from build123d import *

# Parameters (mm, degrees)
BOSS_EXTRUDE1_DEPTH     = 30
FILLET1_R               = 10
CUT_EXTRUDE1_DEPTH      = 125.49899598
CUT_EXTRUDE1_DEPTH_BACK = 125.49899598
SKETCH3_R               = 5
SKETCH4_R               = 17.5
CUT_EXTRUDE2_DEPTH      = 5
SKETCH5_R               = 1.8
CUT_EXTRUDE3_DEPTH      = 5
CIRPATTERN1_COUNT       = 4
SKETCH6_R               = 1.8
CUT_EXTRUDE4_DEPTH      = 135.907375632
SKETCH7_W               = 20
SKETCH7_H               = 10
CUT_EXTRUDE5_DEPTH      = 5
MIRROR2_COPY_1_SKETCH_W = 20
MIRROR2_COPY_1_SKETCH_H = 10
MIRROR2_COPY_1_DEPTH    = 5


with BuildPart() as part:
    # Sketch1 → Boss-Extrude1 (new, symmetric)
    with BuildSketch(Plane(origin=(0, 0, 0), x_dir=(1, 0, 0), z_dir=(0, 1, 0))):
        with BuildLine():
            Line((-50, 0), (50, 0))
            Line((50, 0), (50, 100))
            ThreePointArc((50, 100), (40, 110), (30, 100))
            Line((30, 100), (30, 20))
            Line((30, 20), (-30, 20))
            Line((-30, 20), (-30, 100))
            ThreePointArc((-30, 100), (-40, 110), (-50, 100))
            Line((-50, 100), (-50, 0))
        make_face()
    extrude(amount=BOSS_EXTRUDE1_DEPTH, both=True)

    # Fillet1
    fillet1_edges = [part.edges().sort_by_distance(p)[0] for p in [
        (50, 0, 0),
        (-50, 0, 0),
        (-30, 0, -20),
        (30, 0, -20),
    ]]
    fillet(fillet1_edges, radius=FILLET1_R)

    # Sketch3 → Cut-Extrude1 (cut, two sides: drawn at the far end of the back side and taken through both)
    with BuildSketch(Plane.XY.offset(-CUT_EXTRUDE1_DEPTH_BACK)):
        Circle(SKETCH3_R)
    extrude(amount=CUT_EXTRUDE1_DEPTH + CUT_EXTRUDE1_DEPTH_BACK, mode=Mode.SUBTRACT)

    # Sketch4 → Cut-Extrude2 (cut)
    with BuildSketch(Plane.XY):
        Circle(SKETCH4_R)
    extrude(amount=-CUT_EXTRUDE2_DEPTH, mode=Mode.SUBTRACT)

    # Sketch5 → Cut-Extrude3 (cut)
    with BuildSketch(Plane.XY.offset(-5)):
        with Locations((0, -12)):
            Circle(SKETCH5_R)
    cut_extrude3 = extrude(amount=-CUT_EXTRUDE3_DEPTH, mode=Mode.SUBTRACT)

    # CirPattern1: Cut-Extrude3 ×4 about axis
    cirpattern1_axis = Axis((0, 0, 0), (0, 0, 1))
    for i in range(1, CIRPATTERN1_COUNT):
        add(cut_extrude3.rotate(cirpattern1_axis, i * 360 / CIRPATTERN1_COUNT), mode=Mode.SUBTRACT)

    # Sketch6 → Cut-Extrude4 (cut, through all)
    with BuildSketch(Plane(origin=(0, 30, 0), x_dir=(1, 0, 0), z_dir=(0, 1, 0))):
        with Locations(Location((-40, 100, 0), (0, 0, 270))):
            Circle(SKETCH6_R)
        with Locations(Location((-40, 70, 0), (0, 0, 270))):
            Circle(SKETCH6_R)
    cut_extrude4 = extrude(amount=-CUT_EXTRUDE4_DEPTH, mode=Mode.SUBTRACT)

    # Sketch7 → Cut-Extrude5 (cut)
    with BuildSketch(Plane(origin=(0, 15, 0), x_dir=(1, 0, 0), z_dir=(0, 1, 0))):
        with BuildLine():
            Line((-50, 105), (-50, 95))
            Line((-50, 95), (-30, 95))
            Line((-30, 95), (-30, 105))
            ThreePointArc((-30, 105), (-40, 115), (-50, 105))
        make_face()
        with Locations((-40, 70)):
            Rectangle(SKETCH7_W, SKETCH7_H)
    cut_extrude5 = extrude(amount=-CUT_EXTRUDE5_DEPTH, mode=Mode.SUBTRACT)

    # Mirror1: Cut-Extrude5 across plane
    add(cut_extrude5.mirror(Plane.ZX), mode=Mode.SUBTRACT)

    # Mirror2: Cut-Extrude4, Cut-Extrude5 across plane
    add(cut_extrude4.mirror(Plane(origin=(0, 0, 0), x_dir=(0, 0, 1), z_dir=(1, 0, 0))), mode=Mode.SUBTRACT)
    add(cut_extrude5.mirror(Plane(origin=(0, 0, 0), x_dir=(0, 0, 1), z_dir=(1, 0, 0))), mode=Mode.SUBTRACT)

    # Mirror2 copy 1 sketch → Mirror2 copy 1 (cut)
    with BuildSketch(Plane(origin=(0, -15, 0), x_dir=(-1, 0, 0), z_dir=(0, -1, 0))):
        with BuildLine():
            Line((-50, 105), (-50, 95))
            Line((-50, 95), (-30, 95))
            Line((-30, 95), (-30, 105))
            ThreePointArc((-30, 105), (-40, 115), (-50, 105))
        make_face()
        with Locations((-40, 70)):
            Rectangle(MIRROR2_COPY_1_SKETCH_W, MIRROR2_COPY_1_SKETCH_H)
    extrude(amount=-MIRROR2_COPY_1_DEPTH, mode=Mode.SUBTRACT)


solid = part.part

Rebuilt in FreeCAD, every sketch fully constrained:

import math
import FreeCAD as App
import Part
import Sketcher


def edges_at(feature, points):
    """Names of the edges that pass closest to the given points."""
    edges = feature.Shape.Edges
    near = lambda p: min(range(len(edges)), key=lambda i: edges[i].distToShape(Part.Vertex(*p))[0])
    return sorted({f"Edge{near(p) + 1}" for p in points})

doc = App.newDocument("Part")
body = doc.addObject("PartDesign::Body", "Body")

# Sketch on XZ plane
sketch1 = body.newObject("Sketcher::SketchObject", "Sketch")
sketch1.AttachmentSupport = (doc.getObject("XZ_Plane"), [""])
sketch1.MapMode = "FlatFace"
sketch1.addGeometry(Part.LineSegment(App.Vector(-50, 0, 0), App.Vector(50, 0, 0)), False)
sketch1.addGeometry(Part.LineSegment(App.Vector(50, 0, 0), App.Vector(50, -100, 0)), False)
sketch1.addGeometry(Part.ArcOfCircle(Part.Circle(App.Vector(40, -100, 0), App.Vector(0, 0, 1), 10), math.radians(180), math.radians(360)), False)
sketch1.addGeometry(Part.LineSegment(App.Vector(30, -100, 0), App.Vector(30, -20, 0)), False)
sketch1.addGeometry(Part.LineSegment(App.Vector(30, -20, 0), App.Vector(-30, -20, 0)), False)
sketch1.addGeometry(Part.LineSegment(App.Vector(-30, -20, 0), App.Vector(-30, -100, 0)), False)
sketch1.addGeometry(Part.ArcOfCircle(Part.Circle(App.Vector(-40, -100, 0), App.Vector(0, 0, 1), 10), math.radians(180), math.radians(360)), False)
sketch1.addGeometry(Part.LineSegment(App.Vector(-50, -100, 0), App.Vector(-50, 0, 0)), False)
sketch1.addConstraint(Sketcher.Constraint("Coincident", 0, 2, 1, 1))
sketch1.addConstraint(Sketcher.Constraint("Tangent", 1, 2, 2, 2))
sketch1.addConstraint(Sketcher.Constraint("Tangent", 2, 1, 3, 1))
sketch1.addConstraint(Sketcher.Constraint("Coincident", 3, 2, 4, 1))
sketch1.addConstraint(Sketcher.Constraint("Coincident", 4, 2, 5, 1))
sketch1.addConstraint(Sketcher.Constraint("Tangent", 5, 2, 6, 2))
sketch1.addConstraint(Sketcher.Constraint("Tangent", 6, 1, 7, 1))
sketch1.addConstraint(Sketcher.Constraint("Coincident", 7, 2, 0, 1))
sketch1.addConstraint(Sketcher.Constraint("Horizontal", 0))
sketch1.addConstraint(Sketcher.Constraint("Vertical", 1))
sketch1.addConstraint(Sketcher.Constraint("Vertical", 3))
sketch1.addConstraint(Sketcher.Constraint("Horizontal", 4))
sketch1.addConstraint(Sketcher.Constraint("Vertical", 5))
sketch1.addConstraint(Sketcher.Constraint("Vertical", 7))
sketch1.addConstraint(Sketcher.Constraint("Equal", 2, 6))
sketch1.addConstraint(Sketcher.Constraint("Symmetric", 0, 2, 7, 2, -1, 1))
sketch1.addConstraint(Sketcher.Constraint("Horizontal", 2, 3, 6, 3))
sketch1.addConstraint(Sketcher.Constraint("Equal", 0, 1))
sketch1.addConstraint(Sketcher.Constraint("Radius", 2, 10.0))
sketch1.addConstraint(Sketcher.Constraint("DistanceX", 0, 1, 0, 2, 100.0))
sketch1.addConstraint(Sketcher.Constraint("DistanceY", 3, 1, 3, 2, 80.0))
pad1 = body.newObject("PartDesign::Pad", "Pad")
pad1.Profile = sketch1
pad1.Length = 60
pad1.Midplane = True
doc.recompute()

fillet = body.newObject("PartDesign::Fillet", "Fillet")
fillet.Base = (pad1, edges_at(pad1, [
    (50, 0, 0),
    (-50, 0, 0),
    (-30, 0, -20),
    (30, 0, -20),
]))
fillet.Radius = 10

# Sketch on XY plane
sketch2 = body.newObject("Sketcher::SketchObject", "Sketch001")
sketch2.AttachmentSupport = (doc.getObject("XY_Plane"), [""])
sketch2.MapMode = "FlatFace"
sketch2.addGeometry(Part.Circle(App.Vector(0, 0, 0), App.Vector(0, 0, 1), 5), False)
sketch2.addConstraint(Sketcher.Constraint("Coincident", 0, 3, -1, 1))
sketch2.addConstraint(Sketcher.Constraint("Diameter", 0, 10.0))
pocket1 = body.newObject("PartDesign::Pocket", "Pocket")
pocket1.Profile = sketch2
pocket1.Type = "ThroughAll"
pocket1.Midplane = True

# Sketch on XY plane
sketch3 = body.newObject("Sketcher::SketchObject", "Sketch002")
sketch3.AttachmentSupport = (doc.getObject("XY_Plane"), [""])
sketch3.MapMode = "FlatFace"
sketch3.addGeometry(Part.Circle(App.Vector(0, 0, 0), App.Vector(0, 0, 1), 18), False)
sketch3.addConstraint(Sketcher.Constraint("Coincident", 0, 3, -1, 1))
sketch3.addConstraint(Sketcher.Constraint("Diameter", 0, 35.0))
pocket2 = body.newObject("PartDesign::Pocket", "Pocket001")
pocket2.Profile = sketch3
pocket2.Length = 5

# Sketch on XY plane
sketch4 = body.newObject("Sketcher::SketchObject", "Sketch003")
sketch4.AttachmentSupport = (doc.getObject("XY_Plane"), [""])
sketch4.MapMode = "FlatFace"
sketch4.AttachmentOffset = App.Placement(App.Vector(0, 0, -5), App.Rotation())
sketch4.addGeometry(Part.Circle(App.Vector(0, -12, 0), App.Vector(0, 0, 1), 1.8), False)
sketch4.addConstraint(Sketcher.Constraint("PointOnObject", 0, 3, -2))
sketch4.addConstraint(Sketcher.Constraint("Diameter", 0, 3.6))
sketch4.addConstraint(Sketcher.Constraint("DistanceY", 0, 3, -1, 1, 12.0))
pocket3 = body.newObject("PartDesign::Pocket", "Pocket002")
pocket3.Profile = sketch4
pocket3.Length = 5
doc.recompute()

polarpattern = body.newObject("PartDesign::PolarPattern", "PolarPattern")
polarpattern.Originals = [pocket3]
polarpattern.Axis = (doc.getObject("Z_Axis"), [""])
polarpattern.Angle = 360
polarpattern.Occurrences = 4
body.Tip = polarpattern

# Sketch on XZ plane
sketch5 = body.newObject("Sketcher::SketchObject", "Sketch004")
sketch5.AttachmentSupport = (doc.getObject("XZ_Plane"), [""])
sketch5.MapMode = "FlatFace"
sketch5.AttachmentOffset = App.Placement(App.Vector(0, 0, -30), App.Rotation())
sketch5.addGeometry(Part.Circle(App.Vector(-40, -100, 0), App.Vector(0, 0, 1), 1.8), False)
sketch5.addGeometry(Part.Circle(App.Vector(-40, -70, 0), App.Vector(0, 0, 1), 1.8), False)
sketch5.addConstraint(Sketcher.Constraint("Equal", 0, 1))
sketch5.addConstraint(Sketcher.Constraint("Vertical", 0, 3, 1, 3))
sketch5.addConstraint(Sketcher.Constraint("Diameter", 0, 3.6))
sketch5.addConstraint(Sketcher.Constraint("DistanceX", 0, 3, -1, 1, 40.0))
sketch5.addConstraint(Sketcher.Constraint("DistanceY", 0, 3, -1, 1, 100.0))
sketch5.addConstraint(Sketcher.Constraint("DistanceY", 1, 3, -1, 1, 70.0))
pocket4 = body.newObject("PartDesign::Pocket", "Pocket003")
pocket4.Profile = sketch5
pocket4.Type = "ThroughAll"
pocket4.Reversed = True

# Sketch on XZ plane
sketch6 = body.newObject("Sketcher::SketchObject", "Sketch005")
sketch6.AttachmentSupport = (doc.getObject("XZ_Plane"), [""])
sketch6.MapMode = "FlatFace"
sketch6.AttachmentOffset = App.Placement(App.Vector(0, 0, -15), App.Rotation())
sketch6.addGeometry(Part.LineSegment(App.Vector(-50, -105, 0), App.Vector(-50, -95, 0)), False)
sketch6.addGeometry(Part.LineSegment(App.Vector(-50, -95, 0), App.Vector(-30, -95, 0)), False)
sketch6.addGeometry(Part.LineSegment(App.Vector(-30, -95, 0), App.Vector(-30, -105, 0)), False)
sketch6.addGeometry(Part.ArcOfCircle(Part.Circle(App.Vector(-40, -105, 0), App.Vector(0, 0, 1), 10), math.radians(180), math.radians(360)), False)
sketch6.addGeometry(Part.LineSegment(App.Vector(-50, -75, 0), App.Vector(-50, -65, 0)), False)
sketch6.addGeometry(Part.LineSegment(App.Vector(-50, -65, 0), App.Vector(-30, -65, 0)), False)
sketch6.addGeometry(Part.LineSegment(App.Vector(-30, -65, 0), App.Vector(-30, -75, 0)), False)
sketch6.addGeometry(Part.LineSegment(App.Vector(-30, -75, 0), App.Vector(-50, -75, 0)), False)
sketch6.addConstraint(Sketcher.Constraint("Coincident", 0, 2, 1, 1))
sketch6.addConstraint(Sketcher.Constraint("Coincident", 1, 2, 2, 1))
sketch6.addConstraint(Sketcher.Constraint("Tangent", 2, 2, 3, 2))
sketch6.addConstraint(Sketcher.Constraint("Tangent", 3, 1, 0, 1))
sketch6.addConstraint(Sketcher.Constraint("Coincident", 4, 2, 5, 1))
sketch6.addConstraint(Sketcher.Constraint("Coincident", 5, 2, 6, 1))
sketch6.addConstraint(Sketcher.Constraint("Coincident", 6, 2, 7, 1))
sketch6.addConstraint(Sketcher.Constraint("Coincident", 7, 2, 4, 1))
sketch6.addConstraint(Sketcher.Constraint("Vertical", 0))
sketch6.addConstraint(Sketcher.Constraint("Horizontal", 1))
sketch6.addConstraint(Sketcher.Constraint("Vertical", 2))
sketch6.addConstraint(Sketcher.Constraint("Vertical", 4))
sketch6.addConstraint(Sketcher.Constraint("Horizontal", 5))
sketch6.addConstraint(Sketcher.Constraint("Vertical", 6))
sketch6.addConstraint(Sketcher.Constraint("Horizontal", 7))
sketch6.addConstraint(Sketcher.Constraint("Vertical", 3, 1, 4, 2))
sketch6.addConstraint(Sketcher.Constraint("Vertical", 2, 2, 5, 2))
sketch6.addConstraint(Sketcher.Constraint("Equal", 2, 4))
sketch6.addConstraint(Sketcher.Constraint("Radius", 3, 10.0))
sketch6.addConstraint(Sketcher.Constraint("DistanceY", 0, 1, 0, 2, 10.0))
sketch6.addConstraint(Sketcher.Constraint("DistanceX", 3, 3, -1, 1, 40.0))
sketch6.addConstraint(Sketcher.Constraint("DistanceY", 3, 3, -1, 1, 105.0))
sketch6.addConstraint(Sketcher.Constraint("DistanceY", 4, 2, -1, 1, 65.0))
pocket5 = body.newObject("PartDesign::Pocket", "Pocket004")
pocket5.Profile = sketch6
pocket5.Length = 5
pocket5.Reversed = True
doc.recompute()

mirrored = body.newObject("PartDesign::Mirrored", "Mirrored")
mirrored.Originals = [pocket5]
mirrored.MirrorPlane = (doc.getObject("XZ_Plane"), [""])
body.Tip = mirrored
doc.recompute()

mirrored2 = body.newObject("PartDesign::Mirrored", "Mirrored001")
mirrored2.Originals = [pocket4, pocket5]
mirrored2.MirrorPlane = (doc.getObject("YZ_Plane"), [""])
body.Tip = mirrored2

# Sketch on XZ plane
sketch7 = body.newObject("Sketcher::SketchObject", "Sketch006")
sketch7.AttachmentSupport = (doc.getObject("XZ_Plane"), [""])
sketch7.MapMode = "FlatFace"
sketch7.AttachmentOffset = App.Placement(App.Vector(0, 0, 15), App.Rotation())
sketch7.addGeometry(Part.LineSegment(App.Vector(50, -105, 0), App.Vector(50, -95, 0)), False)
sketch7.addGeometry(Part.LineSegment(App.Vector(50, -95, 0), App.Vector(30, -95, 0)), False)
sketch7.addGeometry(Part.LineSegment(App.Vector(30, -95, 0), App.Vector(30, -105, 0)), False)
sketch7.addGeometry(Part.ArcOfCircle(Part.Circle(App.Vector(40, -105, 0), App.Vector(0, 0, 1), 10), math.radians(180), math.radians(360)), False)
sketch7.addGeometry(Part.LineSegment(App.Vector(50, -75, 0), App.Vector(50, -65, 0)), False)
sketch7.addGeometry(Part.LineSegment(App.Vector(50, -65, 0), App.Vector(30, -65, 0)), False)
sketch7.addGeometry(Part.LineSegment(App.Vector(30, -65, 0), App.Vector(30, -75, 0)), False)
sketch7.addGeometry(Part.LineSegment(App.Vector(30, -75, 0), App.Vector(50, -75, 0)), False)
sketch7.addConstraint(Sketcher.Constraint("Coincident", 0, 2, 1, 1))
sketch7.addConstraint(Sketcher.Constraint("Coincident", 1, 2, 2, 1))
sketch7.addConstraint(Sketcher.Constraint("Tangent", 2, 2, 3, 1))
sketch7.addConstraint(Sketcher.Constraint("Tangent", 3, 2, 0, 1))
sketch7.addConstraint(Sketcher.Constraint("Coincident", 4, 2, 5, 1))
sketch7.addConstraint(Sketcher.Constraint("Coincident", 5, 2, 6, 1))
sketch7.addConstraint(Sketcher.Constraint("Coincident", 6, 2, 7, 1))
sketch7.addConstraint(Sketcher.Constraint("Coincident", 7, 2, 4, 1))
sketch7.addConstraint(Sketcher.Constraint("Vertical", 0))
sketch7.addConstraint(Sketcher.Constraint("Horizontal", 1))
sketch7.addConstraint(Sketcher.Constraint("Vertical", 2))
sketch7.addConstraint(Sketcher.Constraint("Vertical", 4))
sketch7.addConstraint(Sketcher.Constraint("Horizontal", 5))
sketch7.addConstraint(Sketcher.Constraint("Vertical", 6))
sketch7.addConstraint(Sketcher.Constraint("Horizontal", 7))
sketch7.addConstraint(Sketcher.Constraint("Vertical", 3, 2, 4, 2))
sketch7.addConstraint(Sketcher.Constraint("Vertical", 2, 2, 5, 2))
sketch7.addConstraint(Sketcher.Constraint("Equal", 2, 4))
sketch7.addConstraint(Sketcher.Constraint("Radius", 3, 10.0))
sketch7.addConstraint(Sketcher.Constraint("DistanceY", 0, 1, 0, 2, 10.0))
sketch7.addConstraint(Sketcher.Constraint("DistanceX", -1, 1, 3, 3, 40.0))
sketch7.addConstraint(Sketcher.Constraint("DistanceY", 3, 3, -1, 1, 105.0))
sketch7.addConstraint(Sketcher.Constraint("DistanceY", 4, 2, -1, 1, 65.0))
pocket6 = body.newObject("PartDesign::Pocket", "Pocket005")
pocket6.Profile = sketch7
pocket6.Length = 5

doc.recompute()
